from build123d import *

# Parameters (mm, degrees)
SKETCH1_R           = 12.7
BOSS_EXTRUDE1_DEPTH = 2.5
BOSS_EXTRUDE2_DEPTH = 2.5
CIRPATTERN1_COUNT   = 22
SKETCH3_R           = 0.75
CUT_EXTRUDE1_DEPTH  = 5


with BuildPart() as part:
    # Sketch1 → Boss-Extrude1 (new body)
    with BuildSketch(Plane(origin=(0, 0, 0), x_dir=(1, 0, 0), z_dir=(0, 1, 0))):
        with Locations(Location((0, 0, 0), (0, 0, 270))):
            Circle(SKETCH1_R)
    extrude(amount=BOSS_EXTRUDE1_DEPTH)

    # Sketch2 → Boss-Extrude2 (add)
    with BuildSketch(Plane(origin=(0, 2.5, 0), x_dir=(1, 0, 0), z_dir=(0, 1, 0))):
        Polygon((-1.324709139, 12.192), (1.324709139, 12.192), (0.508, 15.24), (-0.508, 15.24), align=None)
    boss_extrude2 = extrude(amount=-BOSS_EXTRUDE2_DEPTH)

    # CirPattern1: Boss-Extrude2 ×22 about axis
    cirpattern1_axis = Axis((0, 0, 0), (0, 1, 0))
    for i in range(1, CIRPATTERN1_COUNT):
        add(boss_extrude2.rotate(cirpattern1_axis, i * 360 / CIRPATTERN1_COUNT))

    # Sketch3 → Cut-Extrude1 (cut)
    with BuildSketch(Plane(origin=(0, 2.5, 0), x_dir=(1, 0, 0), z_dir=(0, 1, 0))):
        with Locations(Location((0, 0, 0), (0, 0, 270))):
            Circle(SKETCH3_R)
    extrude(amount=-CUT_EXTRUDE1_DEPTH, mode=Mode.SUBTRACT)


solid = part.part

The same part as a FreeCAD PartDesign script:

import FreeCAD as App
import Part
import Sketcher

V = App.Vector
Q = App.Units.Quantity

doc = App.newDocument("Part")
body = doc.addObject("PartDesign::Body", "Body")

# Sketch on XZ plane
sketch1 = doc.addObject("Sketcher::SketchObject", "Sketch")
body.addObject(sketch1)
sketch1.AttachmentSupport = (doc.XZ_Plane, [""])
sketch1.MapMode = "FlatFace"
sketch1.addGeometry(Part.Circle(V(0, 0, 0), V(0, 0, 1), 12.7), False)
sketch1.addConstraint([
    Sketcher.Constraint("Coincident", 0, 3, -1, 1),
    Sketcher.Constraint("Diameter", 0, 25.4),
])
pad1 = doc.addObject("PartDesign::Pad", "Pad")
body.addObject(pad1)
pad1.Profile = sketch1
pad1.Length = 2.5
pad1.Reversed = True

# Sketch on XZ plane
sketch2 = doc.addObject("Sketcher::SketchObject", "Sketch001")
body.addObject(sketch2)
sketch2.AttachmentSupport = (doc.XZ_Plane, [""])
sketch2.MapMode = "FlatFace"
sketch2.AttachmentOffset = App.Placement(V(0, 0, -2.5), App.Rotation())
sketch2.addGeometry([
    Part.LineSegment(V(-1.324709, -12.192, 0), V(1.324709, -12.192, 0)),
    Part.LineSegment(V(1.324709, -12.192, 0), V(0.508, -15.24, 0)),
    Part.LineSegment(V(0.508, -15.24, 0), V(-0.508, -15.24, 0)),
    Part.LineSegment(V(-0.508, -15.24, 0), V(-1.324709, -12.192, 0)),
], False)
sketch2.addConstraint([
    Sketcher.Constraint("Coincident", 0, 2, 1, 1),
    Sketcher.Constraint("Coincident", 1, 2, 2, 1),
    Sketcher.Constraint("Coincident", 2, 2, 3, 1),
    Sketcher.Constraint("Coincident", 3, 2, 0, 1),
    Sketcher.Constraint("Horizontal", 0),
    Sketcher.Constraint("Horizontal", 2),
    Sketcher.Constraint("Equal", 1, 3),
    Sketcher.Constraint("Angle", 1, Q("-105 deg")),
    Sketcher.Constraint("DistanceX", 2, 2, 2, 1, 1.016),
    Sketcher.Constraint("DistanceY", 1, 2, -1, 1, 15.24),
    Sketcher.Constraint("DistanceY", 0, 2, -1, 1, 12.192),
    Sketcher.Constraint("DistanceX", -1, 1, 1, 2, 0.508),
])
pad2 = doc.addObject("PartDesign::Pad", "Pad001")
body.addObject(pad2)
pad2.Profile = sketch2
pad2.Length = 2.5
doc.recompute()

polarpattern = doc.addObject("PartDesign::PolarPattern", "PolarPattern")
body.addObject(polarpattern)
polarpattern.Originals = [pad2]
polarpattern.Axis = (doc.Y_Axis, [""])
polarpattern.Angle = 360
polarpattern.Occurrences = 22
body.Tip = polarpattern

# Sketch on XZ plane
sketch3 = doc.addObject("Sketcher::SketchObject", "Sketch002")
body.addObject(sketch3)
sketch3.AttachmentSupport = (doc.XZ_Plane, [""])
sketch3.MapMode = "FlatFace"
sketch3.AttachmentOffset = App.Placement(V(0, 0, -2.5), App.Rotation())
sketch3.addGeometry(Part.Circle(V(0, 0, 0), V(0, 0, 1), 0.75), False)
sketch3.addConstraint([
    Sketcher.Constraint("Coincident", 0, 3, -1, 1),
    Sketcher.Constraint("Diameter", 0, 1.5),
])
pocket1 = doc.addObject("PartDesign::Pocket", "Pocket")
body.addObject(pocket1)
pocket1.Profile = sketch3
pocket1.Length = 5
pocket1.Reversed = True

doc.recompute()
